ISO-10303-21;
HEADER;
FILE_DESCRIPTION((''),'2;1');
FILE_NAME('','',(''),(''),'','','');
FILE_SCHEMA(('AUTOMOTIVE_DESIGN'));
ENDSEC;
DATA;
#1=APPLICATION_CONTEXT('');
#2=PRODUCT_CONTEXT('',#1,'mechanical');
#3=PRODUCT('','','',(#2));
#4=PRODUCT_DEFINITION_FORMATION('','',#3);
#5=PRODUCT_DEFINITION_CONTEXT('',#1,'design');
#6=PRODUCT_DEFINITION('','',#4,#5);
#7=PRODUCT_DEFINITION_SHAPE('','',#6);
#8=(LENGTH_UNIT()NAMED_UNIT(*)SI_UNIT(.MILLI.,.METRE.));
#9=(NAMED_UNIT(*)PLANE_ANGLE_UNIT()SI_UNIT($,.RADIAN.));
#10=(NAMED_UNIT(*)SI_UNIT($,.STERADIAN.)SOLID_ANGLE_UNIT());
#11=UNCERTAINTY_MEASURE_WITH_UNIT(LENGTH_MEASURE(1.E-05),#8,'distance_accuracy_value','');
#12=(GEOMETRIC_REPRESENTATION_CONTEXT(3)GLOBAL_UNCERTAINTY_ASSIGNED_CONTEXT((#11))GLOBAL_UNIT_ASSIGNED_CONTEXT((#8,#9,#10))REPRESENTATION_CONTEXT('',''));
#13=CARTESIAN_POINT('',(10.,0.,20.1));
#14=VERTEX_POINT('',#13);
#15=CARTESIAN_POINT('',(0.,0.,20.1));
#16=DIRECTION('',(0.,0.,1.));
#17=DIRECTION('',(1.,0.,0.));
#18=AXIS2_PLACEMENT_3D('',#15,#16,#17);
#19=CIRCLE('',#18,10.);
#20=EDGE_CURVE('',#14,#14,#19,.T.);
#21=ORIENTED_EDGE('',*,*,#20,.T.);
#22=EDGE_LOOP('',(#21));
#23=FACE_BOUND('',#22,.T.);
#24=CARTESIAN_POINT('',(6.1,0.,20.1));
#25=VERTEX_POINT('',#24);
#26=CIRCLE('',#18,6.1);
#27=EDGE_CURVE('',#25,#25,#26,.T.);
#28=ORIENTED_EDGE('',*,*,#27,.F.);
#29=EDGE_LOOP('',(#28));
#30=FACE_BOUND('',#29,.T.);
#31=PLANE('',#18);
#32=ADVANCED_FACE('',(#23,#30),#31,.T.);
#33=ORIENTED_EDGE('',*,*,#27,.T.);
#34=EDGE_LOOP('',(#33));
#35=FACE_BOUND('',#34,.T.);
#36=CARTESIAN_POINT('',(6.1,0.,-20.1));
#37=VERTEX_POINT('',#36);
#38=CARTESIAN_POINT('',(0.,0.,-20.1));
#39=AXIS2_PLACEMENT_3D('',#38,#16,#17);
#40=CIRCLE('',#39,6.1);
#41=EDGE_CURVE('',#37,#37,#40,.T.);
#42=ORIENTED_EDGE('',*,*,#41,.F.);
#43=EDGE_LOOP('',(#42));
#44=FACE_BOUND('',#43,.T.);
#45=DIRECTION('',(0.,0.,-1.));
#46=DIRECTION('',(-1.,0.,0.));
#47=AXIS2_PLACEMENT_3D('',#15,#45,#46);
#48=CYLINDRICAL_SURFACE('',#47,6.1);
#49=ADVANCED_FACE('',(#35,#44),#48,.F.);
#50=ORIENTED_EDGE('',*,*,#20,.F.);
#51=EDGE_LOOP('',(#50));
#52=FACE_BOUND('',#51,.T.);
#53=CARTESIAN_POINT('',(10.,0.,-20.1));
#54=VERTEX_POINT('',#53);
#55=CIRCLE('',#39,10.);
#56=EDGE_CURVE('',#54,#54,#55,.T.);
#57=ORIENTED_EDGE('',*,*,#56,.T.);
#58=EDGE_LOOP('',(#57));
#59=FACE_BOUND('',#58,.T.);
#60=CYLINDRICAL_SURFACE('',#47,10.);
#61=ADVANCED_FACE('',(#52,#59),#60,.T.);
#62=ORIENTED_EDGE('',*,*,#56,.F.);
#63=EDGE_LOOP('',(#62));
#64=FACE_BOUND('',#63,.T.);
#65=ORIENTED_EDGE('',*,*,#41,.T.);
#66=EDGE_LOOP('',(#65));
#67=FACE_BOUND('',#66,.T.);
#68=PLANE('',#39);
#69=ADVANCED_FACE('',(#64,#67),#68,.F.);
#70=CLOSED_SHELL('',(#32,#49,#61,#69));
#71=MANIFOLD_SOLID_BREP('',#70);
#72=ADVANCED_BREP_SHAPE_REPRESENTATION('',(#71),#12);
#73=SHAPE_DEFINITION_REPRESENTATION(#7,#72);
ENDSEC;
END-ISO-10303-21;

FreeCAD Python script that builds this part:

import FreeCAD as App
import Part
import Sketcher
Q = App.Units.Quantity

doc = App.newDocument("Part")
params = doc.addObject("Spreadsheet::Sheet", "Params")
for row, (alias, value) in enumerate([
    ("sketch1_diameter", "20 mm"),
    ("sketch1_diameter2", "12.2 mm"),
    ("pad1_length", "40.2 mm"),
], start=1):
    params.set(f"A{row}", alias)
    params.set(f"B{row}", "=" + value)
    params.setAlias(f"B{row}", alias)

body = doc.addObject("PartDesign::Body", "Body")

# Sketch on XY plane
sketch1 = body.newObject("Sketcher::SketchObject", "Sketch")
sketch1.AttachmentSupport = (doc.getObject("XY_Plane"), [""])
sketch1.MapMode = "FlatFace"
sketch1.addGeometry(Part.Circle(App.Vector(0, 0, 0), App.Vector(0, 0, 1), 10), False)
sketch1.addGeometry(Part.Circle(App.Vector(0, 0, 0), App.Vector(0, 0, 1), 6), False)
sketch1.addConstraint(Sketcher.Constraint("Coincident", 0, 3, -1, 1))
sketch1.addConstraint(Sketcher.Constraint("Coincident", 1, 3, -1, 1))
sketch1.addConstraint(Sketcher.Constraint("Diameter", 0, Q("20 mm")))
sketch1.addConstraint(Sketcher.Constraint("Diameter", 1, Q("12.2 mm")))
sketch1.setExpression("Constraints[2]", "Params.sketch1_diameter")
sketch1.setExpression("Constraints[3]", "Params.sketch1_diameter2")
pad1 = body.newObject("PartDesign::Pad", "Pad")
pad1.Profile = sketch1
pad1.setExpression("Length", "Params.pad1_length")
pad1.Midplane = True

doc.recompute()
